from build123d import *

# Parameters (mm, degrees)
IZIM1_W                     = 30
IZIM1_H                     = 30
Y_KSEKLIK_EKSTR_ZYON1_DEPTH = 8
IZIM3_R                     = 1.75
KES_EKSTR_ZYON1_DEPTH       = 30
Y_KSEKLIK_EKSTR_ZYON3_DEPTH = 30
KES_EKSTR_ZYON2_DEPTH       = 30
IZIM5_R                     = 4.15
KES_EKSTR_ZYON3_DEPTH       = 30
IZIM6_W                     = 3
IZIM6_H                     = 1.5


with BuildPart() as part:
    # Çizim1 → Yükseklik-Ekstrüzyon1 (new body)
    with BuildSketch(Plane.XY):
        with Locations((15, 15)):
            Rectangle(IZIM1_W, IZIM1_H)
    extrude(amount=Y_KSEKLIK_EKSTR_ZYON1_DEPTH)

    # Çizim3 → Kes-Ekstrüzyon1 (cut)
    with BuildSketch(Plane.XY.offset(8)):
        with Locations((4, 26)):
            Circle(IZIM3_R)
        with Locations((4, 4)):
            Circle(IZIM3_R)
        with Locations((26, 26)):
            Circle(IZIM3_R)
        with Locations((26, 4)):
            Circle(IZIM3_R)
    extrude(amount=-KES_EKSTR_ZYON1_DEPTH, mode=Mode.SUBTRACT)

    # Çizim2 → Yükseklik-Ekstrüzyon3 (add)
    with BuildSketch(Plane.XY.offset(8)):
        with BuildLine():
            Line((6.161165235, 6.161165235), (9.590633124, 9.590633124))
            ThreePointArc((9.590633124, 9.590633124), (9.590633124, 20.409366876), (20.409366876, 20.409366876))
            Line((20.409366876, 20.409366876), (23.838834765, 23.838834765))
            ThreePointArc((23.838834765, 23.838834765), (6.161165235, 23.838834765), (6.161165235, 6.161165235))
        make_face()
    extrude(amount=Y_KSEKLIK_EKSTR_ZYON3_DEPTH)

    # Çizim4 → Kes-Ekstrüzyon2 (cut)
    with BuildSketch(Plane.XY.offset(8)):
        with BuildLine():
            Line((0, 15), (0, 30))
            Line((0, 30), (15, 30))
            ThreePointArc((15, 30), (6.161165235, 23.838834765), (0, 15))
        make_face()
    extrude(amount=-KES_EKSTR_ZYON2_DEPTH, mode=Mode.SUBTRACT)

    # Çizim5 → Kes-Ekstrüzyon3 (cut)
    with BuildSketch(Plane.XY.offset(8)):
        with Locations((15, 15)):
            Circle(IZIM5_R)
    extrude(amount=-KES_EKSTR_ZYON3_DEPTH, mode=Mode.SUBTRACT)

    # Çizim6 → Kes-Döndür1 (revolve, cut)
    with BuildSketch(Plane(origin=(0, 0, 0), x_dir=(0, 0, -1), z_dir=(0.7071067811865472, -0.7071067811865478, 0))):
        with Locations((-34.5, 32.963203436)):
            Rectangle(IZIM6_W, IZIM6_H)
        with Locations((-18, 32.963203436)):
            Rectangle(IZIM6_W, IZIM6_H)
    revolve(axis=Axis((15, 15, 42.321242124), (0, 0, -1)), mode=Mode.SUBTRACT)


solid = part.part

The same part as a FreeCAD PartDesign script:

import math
import FreeCAD as App
import Part
import Sketcher
from FreeCAD import Vector
Q = App.Units.Quantity

doc = App.newDocument("Part")
params = doc.addObject("Spreadsheet::Sheet", "Params")
for row, (alias, value) in enumerate([
    ("sketch1_width", "30 mm"),
    ("pad1_length", "8 mm"),
    ("sketch2_diameter", "3.5 mm"),
    ("pocket1_length", "30 mm"),
    ("sketch3_radius", "12.5 mm"),
    ("sketch3_radius2", "7.65 mm"),
    ("pad2_length", "30 mm"),
    ("sketch4_width", "15 mm"),
    ("pocket2_length", "30 mm"),
    ("sketch5_diameter", "8.3 mm"),
    ("pocket3_length", "30 mm"),
    ("sketch6_width", "3 mm"),
    ("sketch6_width2", "19.5 mm"),
    ("sketch6_height", "1.5 mm"),
    ("groove_angle", "360 deg"),
], start=1):
    params.set(f"A{row}", alias)
    params.set(f"B{row}", "=" + value)
    params.setAlias(f"B{row}", alias)

body = doc.addObject("PartDesign::Body", "Body")

sketch1 = doc.addObject("Sketcher::SketchObject", "Sketch")
body.addObject(sketch1)
sketch1.AttachmentSupport = (doc.XY_Plane, [""])
sketch1.MapMode = "FlatFace"
sketch1.addGeometry(Part.LineSegment(Vector(0, 30, 0), Vector(0, 0, 0)), False)
sketch1.addGeometry(Part.LineSegment(Vector(0, 0, 0), Vector(30, 0, 0)), False)
sketch1.addGeometry(Part.LineSegment(Vector(30, 0, 0), Vector(30, 30, 0)), False)
sketch1.addGeometry(Part.LineSegment(Vector(30, 30, 0), Vector(0, 30, 0)), False)
sketch1.addConstraint(Sketcher.Constraint("Coincident", 0, 2, 1, 1))
sketch1.addConstraint(Sketcher.Constraint("Coincident", 1, 2, 2, 1))
sketch1.addConstraint(Sketcher.Constraint("Coincident", 2, 2, 3, 1))
sketch1.addConstraint(Sketcher.Constraint("Coincident", 3, 2, 0, 1))
sketch1.addConstraint(Sketcher.Constraint("Vertical", 0))
sketch1.addConstraint(Sketcher.Constraint("Horizontal", 1))
sketch1.addConstraint(Sketcher.Constraint("Vertical", 2))
sketch1.addConstraint(Sketcher.Constraint("Horizontal", 3))
sketch1.addConstraint(Sketcher.Constraint("Coincident", 0, 2, -1, 1))
sketch1.addConstraint(Sketcher.Constraint("Equal", 3, 0))
sketch1.addConstraint(Sketcher.Constraint("DistanceX", 1, 1, 1, 2, 30.0))
sketch1.setExpression("Constraints[10]", "Params.sketch1_width")
pad1 = doc.addObject("PartDesign::Pad", "Pad")
body.addObject(pad1)
pad1.Profile = sketch1
pad1.setExpression("Length", "Params.pad1_length")

sketch2 = doc.addObject("Sketcher::SketchObject", "Sketch001")
body.addObject(sketch2)
sketch2.AttachmentSupport = (doc.XY_Plane, [""])
sketch2.MapMode = "FlatFace"
sketch2.AttachmentOffset = App.Placement(Vector(0, 0, 8), App.Rotation())
sketch2.addGeometry(Part.Circle(Vector(4, 26, 0), Vector(0, 0, 1), 1.75), False)
sketch2.addGeometry(Part.Circle(Vector(4, 4, 0), Vector(0, 0, 1), 1.75), False)
sketch2.addGeometry(Part.Circle(Vector(26, 26, 0), Vector(0, 0, 1), 1.75), False)
sketch2.addGeometry(Part.Circle(Vector(26, 4, 0), Vector(0, 0, 1), 1.75), False)
sketch2.addConstraint(Sketcher.Constraint("Equal", 0, 1))
sketch2.addConstraint(Sketcher.Constraint("Equal", 1, 2))
sketch2.addConstraint(Sketcher.Constraint("Equal", 2, 3))
sketch2.addConstraint(Sketcher.Constraint("Horizontal", 0, 3, 2, 3))
sketch2.addConstraint(Sketcher.Constraint("Horizontal", 1, 3, 3, 3))
sketch2.addConstraint(Sketcher.Constraint("Vertical", 0, 3, 1, 3))
sketch2.addConstraint(Sketcher.Constraint("Vertical", 2, 3, 3, 3))
sketch2.addConstraint(Sketcher.Constraint("Diameter", 0, 3.5))
sketch2.addConstraint(Sketcher.Constraint("DistanceX", -1, 1, 0, 3, 4.0))
sketch2.addConstraint(Sketcher.Constraint("DistanceY", -1, 1, 0, 3, 26.0))
sketch2.addConstraint(Sketcher.Constraint("DistanceY", -1, 1, 1, 3, 4.0))
sketch2.addConstraint(Sketcher.Constraint("DistanceX", -1, 1, 2, 3, 26.0))
sketch2.setExpression("Constraints[7]", "Params.sketch2_diameter")
pocket1 = doc.addObject("PartDesign::Pocket", "Pocket")
body.addObject(pocket1)
pocket1.Profile = sketch2
pocket1.setExpression("Length", "Params.pocket1_length")

sketch3 = doc.addObject("Sketcher::SketchObject", "Sketch002")
body.addObject(sketch3)
sketch3.AttachmentSupport = (doc.XY_Plane, [""])
sketch3.MapMode = "FlatFace"
sketch3.AttachmentOffset = App.Placement(Vector(0, 0, 8), App.Rotation())
sketch3.addGeometry(Part.LineSegment(Vector(6.161165, 6.161165, 0), Vector(9.590633, 9.590633, 0)), False)
sketch3.addGeometry(Part.ArcOfCircle(Part.Circle(Vector(15, 15, 0), Vector(0, 0, 1), 7.65), math.radians(45), math.radians(225)), False)
sketch3.addGeometry(Part.LineSegment(Vector(20.409367, 20.409367, 0), Vector(23.838835, 23.838835, 0)), False)
sketch3.addGeometry(Part.ArcOfCircle(Part.Circle(Vector(15, 15, 0), Vector(0, 0, 1), 12.5), math.radians(45), math.radians(225)), False)
sketch3.addConstraint(Sketcher.Constraint("Coincident", 0, 2, 1, 2))
sketch3.addConstraint(Sketcher.Constraint("Coincident", 1, 1, 2, 1))
sketch3.addConstraint(Sketcher.Constraint("Coincident", 2, 2, 3, 1))
sketch3.addConstraint(Sketcher.Constraint("Coincident", 3, 2, 0, 1))
sketch3.addConstraint(Sketcher.Constraint("Coincident", 3, 3, 1, 3))
sketch3.addConstraint(Sketcher.Constraint("Parallel", 0, 2))
sketch3.addConstraint(Sketcher.Constraint("Radius", 3, 12.5))
sketch3.addConstraint(Sketcher.Constraint("Angle", 0, Q("45 deg")))
sketch3.addConstraint(Sketcher.Constraint("Radius", 1, 7.65))
sketch3.addConstraint(Sketcher.Constraint("DistanceX", -1, 1, 1, 3, 15.0))
sketch3.addConstraint(Sketcher.Constraint("DistanceY", -1, 1, 1, 3, 15.0))
sketch3.addConstraint(Sketcher.Constraint("DistanceX", 0, 2, 2, 2, 14.248202))
sketch3.addConstraint(Sketcher.Constraint("DistanceX", -1, 1, 0, 2, 9.590633))
sketch3.setExpression("Constraints[6]", "Params.sketch3_radius")
sketch3.setExpression("Constraints[8]", "Params.sketch3_radius2")
pad2 = doc.addObject("PartDesign::Pad", "Pad001")
body.addObject(pad2)
pad2.Profile = sketch3
pad2.setExpression("Length", "Params.pad2_length")

sketch4 = doc.addObject("Sketcher::SketchObject", "Sketch003")
body.addObject(sketch4)
sketch4.AttachmentSupport = (doc.XY_Plane, [""])
sketch4.MapMode = "FlatFace"
sketch4.AttachmentOffset = App.Placement(Vector(0, 0, 8), App.Rotation())
sketch4.addGeometry(Part.LineSegment(Vector(0, 30, 0), Vector(0, 15, 0)), False)
sketch4.addGeometry(Part.ArcOfCircle(Part.Circle(Vector(27.837656, 2.162344, 0), Vector(0, 0, 1), 30.655187), math.radians(114.757334), math.radians(155.242666)), False)
sketch4.addGeometry(Part.LineSegment(Vector(15, 30, 0), Vector(0, 30, 0)), False)
sketch4.addConstraint(Sketcher.Constraint("Coincident", 0, 2, 1, 2))
sketch4.addConstraint(Sketcher.Constraint("Coincident", 1, 1, 2, 1))
sketch4.addConstraint(Sketcher.Constraint("Coincident", 2, 2, 0, 1))
sketch4.addConstraint(Sketcher.Constraint("Vertical", 0))
sketch4.addConstraint(Sketcher.Constraint("Horizontal", 2))
sketch4.addConstraint(Sketcher.Constraint("PointOnObject", 0, 2, -2))
sketch4.addConstraint(Sketcher.Constraint("Equal", 2, 0))
sketch4.addConstraint(Sketcher.Constraint("DistanceX", 2, 2, 2, 1, 15.0))
sketch4.addConstraint(Sketcher.Constraint("DistanceY", -1, 1, 0, 2, 15.0))
sketch4.addConstraint(Sketcher.Constraint("Radius", 1, 30.655187))
sketch4.setExpression("Constraints[7]", "Params.sketch4_width")
pocket2 = doc.addObject("PartDesign::Pocket", "Pocket001")
body.addObject(pocket2)
pocket2.Profile = sketch4
pocket2.setExpression("Length", "Params.pocket2_length")

sketch5 = doc.addObject("Sketcher::SketchObject", "Sketch004")
body.addObject(sketch5)
sketch5.AttachmentSupport = (doc.XY_Plane, [""])
sketch5.MapMode = "FlatFace"
sketch5.AttachmentOffset = App.Placement(Vector(0, 0, 8), App.Rotation())
sketch5.addGeometry(Part.Circle(Vector(15, 15, 0), Vector(0, 0, 1), 4.15), False)
sketch5.addConstraint(Sketcher.Constraint("Diameter", 0, 8.3))
sketch5.addConstraint(Sketcher.Constraint("DistanceX", -1, 1, 0, 3, 15.0))
sketch5.addConstraint(Sketcher.Constraint("DistanceY", -1, 1, 0, 3, 15.0))
sketch5.setExpression("Constraints[0]", "Params.sketch5_diameter")
pocket3 = doc.addObject("PartDesign::Pocket", "Pocket002")
body.addObject(pocket3)
pocket3.Profile = sketch5
pocket3.setExpression("Length", "Params.pocket3_length")

sketch6 = doc.addObject("Sketcher::SketchObject", "Sketch005")
body.addObject(sketch6)
sketch6.Placement = App.Placement(Vector(0, 0, 0), App.Rotation(Vector(0, 0, -1), Vector(0.707106781, 0.707106781, 0), Vector(0.707106781, -0.707106781, 0), "ZXY"))
sketch6.addGeometry(Part.LineSegment(Vector(-36, 33.713203, 0), Vector(-36, 32.213203, 0)), False)
sketch6.addGeometry(Part.LineSegment(Vector(-36, 32.213203, 0), Vector(-33, 32.213203, 0)), False)
sketch6.addGeometry(Part.LineSegment(Vector(-33, 32.213203, 0), Vector(-33, 33.713203, 0)), False)
sketch6.addGeometry(Part.LineSegment(Vector(-33, 33.713203, 0), Vector(-36, 33.713203, 0)), False)
sketch6.addGeometry(Part.LineSegment(Vector(-19.5, 33.713203, 0), Vector(-19.5, 32.213203, 0)), False)
sketch6.addGeometry(Part.LineSegment(Vector(-19.5, 32.213203, 0), Vector(-16.5, 32.213203, 0)), False)
sketch6.addGeometry(Part.LineSegment(Vector(-16.5, 32.213203, 0), Vector(-16.5, 33.713203, 0)), False)
sketch6.addGeometry(Part.LineSegment(Vector(-16.5, 33.713203, 0), Vector(-19.5, 33.713203, 0)), False)
sketch6.addGeometry(Part.LineSegment(Vector(-36, 21.213203, 0), Vector(-16.5, 21.213203, 0)), True)
sketch6.addConstraint(Sketcher.Constraint("Coincident", 0, 2, 1, 1))
sketch6.addConstraint(Sketcher.Constraint("Coincident", 1, 2, 2, 1))
sketch6.addConstraint(Sketcher.Constraint("Coincident", 2, 2, 3, 1))
sketch6.addConstraint(Sketcher.Constraint("Coincident", 3, 2, 0, 1))
sketch6.addConstraint(Sketcher.Constraint("Coincident", 4, 2, 5, 1))
sketch6.addConstraint(Sketcher.Constraint("Coincident", 5, 2, 6, 1))
sketch6.addConstraint(Sketcher.Constraint("Coincident", 6, 2, 7, 1))
sketch6.addConstraint(Sketcher.Constraint("Coincident", 7, 2, 4, 1))
sketch6.addConstraint(Sketcher.Constraint("Vertical", 0))
sketch6.addConstraint(Sketcher.Constraint("Horizontal", 1))
sketch6.addConstraint(Sketcher.Constraint("Vertical", 2))
sketch6.addConstraint(Sketcher.Constraint("Horizontal", 3))
sketch6.addConstraint(Sketcher.Constraint("Vertical", 4))
sketch6.addConstraint(Sketcher.Constraint("Horizontal", 5))
sketch6.addConstraint(Sketcher.Constraint("Vertical", 6))
sketch6.addConstraint(Sketcher.Constraint("Horizontal", 7))
sketch6.addConstraint(Sketcher.Constraint("Horizontal", 8))
sketch6.addConstraint(Sketcher.Constraint("Horizontal", 1, 2, 4, 2))
sketch6.addConstraint(Sketcher.Constraint("Horizontal", 3, 2, 6, 2))
sketch6.addConstraint(Sketcher.Constraint("Vertical", 3, 2, 8, 1))
sketch6.addConstraint(Sketcher.Constraint("Vertical", 6, 2, 8, 2))
sketch6.addConstraint(Sketcher.Constraint("Equal", 3, 5))
sketch6.addConstraint(Sketcher.Constraint("DistanceX", 1, 1, 1, 2, 3.0))
sketch6.addConstraint(Sketcher.Constraint("DistanceX", 8, 1, 8, 2, 19.5))
sketch6.addConstraint(Sketcher.Constraint("DistanceY", 0, 2, 0, 1, 1.5))
sketch6.addConstraint(Sketcher.Constraint("DistanceX", 0, 2, -1, 1, 36.0))
sketch6.addConstraint(Sketcher.Constraint("DistanceY", 8, 1, 0, 2, 11.0))
sketch6.addConstraint(Sketcher.Constraint("DistanceY", -1, 1, 0, 2, 32.213203))
sketch6.setExpression("Constraints[22]", "Params.sketch6_width")
sketch6.setExpression("Constraints[23]", "Params.sketch6_width2")
sketch6.setExpression("Constraints[24]", "Params.sketch6_height")
groove = doc.addObject("PartDesign::Groove", "Groove")
body.addObject(groove)
groove.Profile = sketch6
groove.ReferenceAxis = (sketch6, ["Axis0"])
groove.setExpression("Angle", "Params.groove_angle")

doc.recompute()
